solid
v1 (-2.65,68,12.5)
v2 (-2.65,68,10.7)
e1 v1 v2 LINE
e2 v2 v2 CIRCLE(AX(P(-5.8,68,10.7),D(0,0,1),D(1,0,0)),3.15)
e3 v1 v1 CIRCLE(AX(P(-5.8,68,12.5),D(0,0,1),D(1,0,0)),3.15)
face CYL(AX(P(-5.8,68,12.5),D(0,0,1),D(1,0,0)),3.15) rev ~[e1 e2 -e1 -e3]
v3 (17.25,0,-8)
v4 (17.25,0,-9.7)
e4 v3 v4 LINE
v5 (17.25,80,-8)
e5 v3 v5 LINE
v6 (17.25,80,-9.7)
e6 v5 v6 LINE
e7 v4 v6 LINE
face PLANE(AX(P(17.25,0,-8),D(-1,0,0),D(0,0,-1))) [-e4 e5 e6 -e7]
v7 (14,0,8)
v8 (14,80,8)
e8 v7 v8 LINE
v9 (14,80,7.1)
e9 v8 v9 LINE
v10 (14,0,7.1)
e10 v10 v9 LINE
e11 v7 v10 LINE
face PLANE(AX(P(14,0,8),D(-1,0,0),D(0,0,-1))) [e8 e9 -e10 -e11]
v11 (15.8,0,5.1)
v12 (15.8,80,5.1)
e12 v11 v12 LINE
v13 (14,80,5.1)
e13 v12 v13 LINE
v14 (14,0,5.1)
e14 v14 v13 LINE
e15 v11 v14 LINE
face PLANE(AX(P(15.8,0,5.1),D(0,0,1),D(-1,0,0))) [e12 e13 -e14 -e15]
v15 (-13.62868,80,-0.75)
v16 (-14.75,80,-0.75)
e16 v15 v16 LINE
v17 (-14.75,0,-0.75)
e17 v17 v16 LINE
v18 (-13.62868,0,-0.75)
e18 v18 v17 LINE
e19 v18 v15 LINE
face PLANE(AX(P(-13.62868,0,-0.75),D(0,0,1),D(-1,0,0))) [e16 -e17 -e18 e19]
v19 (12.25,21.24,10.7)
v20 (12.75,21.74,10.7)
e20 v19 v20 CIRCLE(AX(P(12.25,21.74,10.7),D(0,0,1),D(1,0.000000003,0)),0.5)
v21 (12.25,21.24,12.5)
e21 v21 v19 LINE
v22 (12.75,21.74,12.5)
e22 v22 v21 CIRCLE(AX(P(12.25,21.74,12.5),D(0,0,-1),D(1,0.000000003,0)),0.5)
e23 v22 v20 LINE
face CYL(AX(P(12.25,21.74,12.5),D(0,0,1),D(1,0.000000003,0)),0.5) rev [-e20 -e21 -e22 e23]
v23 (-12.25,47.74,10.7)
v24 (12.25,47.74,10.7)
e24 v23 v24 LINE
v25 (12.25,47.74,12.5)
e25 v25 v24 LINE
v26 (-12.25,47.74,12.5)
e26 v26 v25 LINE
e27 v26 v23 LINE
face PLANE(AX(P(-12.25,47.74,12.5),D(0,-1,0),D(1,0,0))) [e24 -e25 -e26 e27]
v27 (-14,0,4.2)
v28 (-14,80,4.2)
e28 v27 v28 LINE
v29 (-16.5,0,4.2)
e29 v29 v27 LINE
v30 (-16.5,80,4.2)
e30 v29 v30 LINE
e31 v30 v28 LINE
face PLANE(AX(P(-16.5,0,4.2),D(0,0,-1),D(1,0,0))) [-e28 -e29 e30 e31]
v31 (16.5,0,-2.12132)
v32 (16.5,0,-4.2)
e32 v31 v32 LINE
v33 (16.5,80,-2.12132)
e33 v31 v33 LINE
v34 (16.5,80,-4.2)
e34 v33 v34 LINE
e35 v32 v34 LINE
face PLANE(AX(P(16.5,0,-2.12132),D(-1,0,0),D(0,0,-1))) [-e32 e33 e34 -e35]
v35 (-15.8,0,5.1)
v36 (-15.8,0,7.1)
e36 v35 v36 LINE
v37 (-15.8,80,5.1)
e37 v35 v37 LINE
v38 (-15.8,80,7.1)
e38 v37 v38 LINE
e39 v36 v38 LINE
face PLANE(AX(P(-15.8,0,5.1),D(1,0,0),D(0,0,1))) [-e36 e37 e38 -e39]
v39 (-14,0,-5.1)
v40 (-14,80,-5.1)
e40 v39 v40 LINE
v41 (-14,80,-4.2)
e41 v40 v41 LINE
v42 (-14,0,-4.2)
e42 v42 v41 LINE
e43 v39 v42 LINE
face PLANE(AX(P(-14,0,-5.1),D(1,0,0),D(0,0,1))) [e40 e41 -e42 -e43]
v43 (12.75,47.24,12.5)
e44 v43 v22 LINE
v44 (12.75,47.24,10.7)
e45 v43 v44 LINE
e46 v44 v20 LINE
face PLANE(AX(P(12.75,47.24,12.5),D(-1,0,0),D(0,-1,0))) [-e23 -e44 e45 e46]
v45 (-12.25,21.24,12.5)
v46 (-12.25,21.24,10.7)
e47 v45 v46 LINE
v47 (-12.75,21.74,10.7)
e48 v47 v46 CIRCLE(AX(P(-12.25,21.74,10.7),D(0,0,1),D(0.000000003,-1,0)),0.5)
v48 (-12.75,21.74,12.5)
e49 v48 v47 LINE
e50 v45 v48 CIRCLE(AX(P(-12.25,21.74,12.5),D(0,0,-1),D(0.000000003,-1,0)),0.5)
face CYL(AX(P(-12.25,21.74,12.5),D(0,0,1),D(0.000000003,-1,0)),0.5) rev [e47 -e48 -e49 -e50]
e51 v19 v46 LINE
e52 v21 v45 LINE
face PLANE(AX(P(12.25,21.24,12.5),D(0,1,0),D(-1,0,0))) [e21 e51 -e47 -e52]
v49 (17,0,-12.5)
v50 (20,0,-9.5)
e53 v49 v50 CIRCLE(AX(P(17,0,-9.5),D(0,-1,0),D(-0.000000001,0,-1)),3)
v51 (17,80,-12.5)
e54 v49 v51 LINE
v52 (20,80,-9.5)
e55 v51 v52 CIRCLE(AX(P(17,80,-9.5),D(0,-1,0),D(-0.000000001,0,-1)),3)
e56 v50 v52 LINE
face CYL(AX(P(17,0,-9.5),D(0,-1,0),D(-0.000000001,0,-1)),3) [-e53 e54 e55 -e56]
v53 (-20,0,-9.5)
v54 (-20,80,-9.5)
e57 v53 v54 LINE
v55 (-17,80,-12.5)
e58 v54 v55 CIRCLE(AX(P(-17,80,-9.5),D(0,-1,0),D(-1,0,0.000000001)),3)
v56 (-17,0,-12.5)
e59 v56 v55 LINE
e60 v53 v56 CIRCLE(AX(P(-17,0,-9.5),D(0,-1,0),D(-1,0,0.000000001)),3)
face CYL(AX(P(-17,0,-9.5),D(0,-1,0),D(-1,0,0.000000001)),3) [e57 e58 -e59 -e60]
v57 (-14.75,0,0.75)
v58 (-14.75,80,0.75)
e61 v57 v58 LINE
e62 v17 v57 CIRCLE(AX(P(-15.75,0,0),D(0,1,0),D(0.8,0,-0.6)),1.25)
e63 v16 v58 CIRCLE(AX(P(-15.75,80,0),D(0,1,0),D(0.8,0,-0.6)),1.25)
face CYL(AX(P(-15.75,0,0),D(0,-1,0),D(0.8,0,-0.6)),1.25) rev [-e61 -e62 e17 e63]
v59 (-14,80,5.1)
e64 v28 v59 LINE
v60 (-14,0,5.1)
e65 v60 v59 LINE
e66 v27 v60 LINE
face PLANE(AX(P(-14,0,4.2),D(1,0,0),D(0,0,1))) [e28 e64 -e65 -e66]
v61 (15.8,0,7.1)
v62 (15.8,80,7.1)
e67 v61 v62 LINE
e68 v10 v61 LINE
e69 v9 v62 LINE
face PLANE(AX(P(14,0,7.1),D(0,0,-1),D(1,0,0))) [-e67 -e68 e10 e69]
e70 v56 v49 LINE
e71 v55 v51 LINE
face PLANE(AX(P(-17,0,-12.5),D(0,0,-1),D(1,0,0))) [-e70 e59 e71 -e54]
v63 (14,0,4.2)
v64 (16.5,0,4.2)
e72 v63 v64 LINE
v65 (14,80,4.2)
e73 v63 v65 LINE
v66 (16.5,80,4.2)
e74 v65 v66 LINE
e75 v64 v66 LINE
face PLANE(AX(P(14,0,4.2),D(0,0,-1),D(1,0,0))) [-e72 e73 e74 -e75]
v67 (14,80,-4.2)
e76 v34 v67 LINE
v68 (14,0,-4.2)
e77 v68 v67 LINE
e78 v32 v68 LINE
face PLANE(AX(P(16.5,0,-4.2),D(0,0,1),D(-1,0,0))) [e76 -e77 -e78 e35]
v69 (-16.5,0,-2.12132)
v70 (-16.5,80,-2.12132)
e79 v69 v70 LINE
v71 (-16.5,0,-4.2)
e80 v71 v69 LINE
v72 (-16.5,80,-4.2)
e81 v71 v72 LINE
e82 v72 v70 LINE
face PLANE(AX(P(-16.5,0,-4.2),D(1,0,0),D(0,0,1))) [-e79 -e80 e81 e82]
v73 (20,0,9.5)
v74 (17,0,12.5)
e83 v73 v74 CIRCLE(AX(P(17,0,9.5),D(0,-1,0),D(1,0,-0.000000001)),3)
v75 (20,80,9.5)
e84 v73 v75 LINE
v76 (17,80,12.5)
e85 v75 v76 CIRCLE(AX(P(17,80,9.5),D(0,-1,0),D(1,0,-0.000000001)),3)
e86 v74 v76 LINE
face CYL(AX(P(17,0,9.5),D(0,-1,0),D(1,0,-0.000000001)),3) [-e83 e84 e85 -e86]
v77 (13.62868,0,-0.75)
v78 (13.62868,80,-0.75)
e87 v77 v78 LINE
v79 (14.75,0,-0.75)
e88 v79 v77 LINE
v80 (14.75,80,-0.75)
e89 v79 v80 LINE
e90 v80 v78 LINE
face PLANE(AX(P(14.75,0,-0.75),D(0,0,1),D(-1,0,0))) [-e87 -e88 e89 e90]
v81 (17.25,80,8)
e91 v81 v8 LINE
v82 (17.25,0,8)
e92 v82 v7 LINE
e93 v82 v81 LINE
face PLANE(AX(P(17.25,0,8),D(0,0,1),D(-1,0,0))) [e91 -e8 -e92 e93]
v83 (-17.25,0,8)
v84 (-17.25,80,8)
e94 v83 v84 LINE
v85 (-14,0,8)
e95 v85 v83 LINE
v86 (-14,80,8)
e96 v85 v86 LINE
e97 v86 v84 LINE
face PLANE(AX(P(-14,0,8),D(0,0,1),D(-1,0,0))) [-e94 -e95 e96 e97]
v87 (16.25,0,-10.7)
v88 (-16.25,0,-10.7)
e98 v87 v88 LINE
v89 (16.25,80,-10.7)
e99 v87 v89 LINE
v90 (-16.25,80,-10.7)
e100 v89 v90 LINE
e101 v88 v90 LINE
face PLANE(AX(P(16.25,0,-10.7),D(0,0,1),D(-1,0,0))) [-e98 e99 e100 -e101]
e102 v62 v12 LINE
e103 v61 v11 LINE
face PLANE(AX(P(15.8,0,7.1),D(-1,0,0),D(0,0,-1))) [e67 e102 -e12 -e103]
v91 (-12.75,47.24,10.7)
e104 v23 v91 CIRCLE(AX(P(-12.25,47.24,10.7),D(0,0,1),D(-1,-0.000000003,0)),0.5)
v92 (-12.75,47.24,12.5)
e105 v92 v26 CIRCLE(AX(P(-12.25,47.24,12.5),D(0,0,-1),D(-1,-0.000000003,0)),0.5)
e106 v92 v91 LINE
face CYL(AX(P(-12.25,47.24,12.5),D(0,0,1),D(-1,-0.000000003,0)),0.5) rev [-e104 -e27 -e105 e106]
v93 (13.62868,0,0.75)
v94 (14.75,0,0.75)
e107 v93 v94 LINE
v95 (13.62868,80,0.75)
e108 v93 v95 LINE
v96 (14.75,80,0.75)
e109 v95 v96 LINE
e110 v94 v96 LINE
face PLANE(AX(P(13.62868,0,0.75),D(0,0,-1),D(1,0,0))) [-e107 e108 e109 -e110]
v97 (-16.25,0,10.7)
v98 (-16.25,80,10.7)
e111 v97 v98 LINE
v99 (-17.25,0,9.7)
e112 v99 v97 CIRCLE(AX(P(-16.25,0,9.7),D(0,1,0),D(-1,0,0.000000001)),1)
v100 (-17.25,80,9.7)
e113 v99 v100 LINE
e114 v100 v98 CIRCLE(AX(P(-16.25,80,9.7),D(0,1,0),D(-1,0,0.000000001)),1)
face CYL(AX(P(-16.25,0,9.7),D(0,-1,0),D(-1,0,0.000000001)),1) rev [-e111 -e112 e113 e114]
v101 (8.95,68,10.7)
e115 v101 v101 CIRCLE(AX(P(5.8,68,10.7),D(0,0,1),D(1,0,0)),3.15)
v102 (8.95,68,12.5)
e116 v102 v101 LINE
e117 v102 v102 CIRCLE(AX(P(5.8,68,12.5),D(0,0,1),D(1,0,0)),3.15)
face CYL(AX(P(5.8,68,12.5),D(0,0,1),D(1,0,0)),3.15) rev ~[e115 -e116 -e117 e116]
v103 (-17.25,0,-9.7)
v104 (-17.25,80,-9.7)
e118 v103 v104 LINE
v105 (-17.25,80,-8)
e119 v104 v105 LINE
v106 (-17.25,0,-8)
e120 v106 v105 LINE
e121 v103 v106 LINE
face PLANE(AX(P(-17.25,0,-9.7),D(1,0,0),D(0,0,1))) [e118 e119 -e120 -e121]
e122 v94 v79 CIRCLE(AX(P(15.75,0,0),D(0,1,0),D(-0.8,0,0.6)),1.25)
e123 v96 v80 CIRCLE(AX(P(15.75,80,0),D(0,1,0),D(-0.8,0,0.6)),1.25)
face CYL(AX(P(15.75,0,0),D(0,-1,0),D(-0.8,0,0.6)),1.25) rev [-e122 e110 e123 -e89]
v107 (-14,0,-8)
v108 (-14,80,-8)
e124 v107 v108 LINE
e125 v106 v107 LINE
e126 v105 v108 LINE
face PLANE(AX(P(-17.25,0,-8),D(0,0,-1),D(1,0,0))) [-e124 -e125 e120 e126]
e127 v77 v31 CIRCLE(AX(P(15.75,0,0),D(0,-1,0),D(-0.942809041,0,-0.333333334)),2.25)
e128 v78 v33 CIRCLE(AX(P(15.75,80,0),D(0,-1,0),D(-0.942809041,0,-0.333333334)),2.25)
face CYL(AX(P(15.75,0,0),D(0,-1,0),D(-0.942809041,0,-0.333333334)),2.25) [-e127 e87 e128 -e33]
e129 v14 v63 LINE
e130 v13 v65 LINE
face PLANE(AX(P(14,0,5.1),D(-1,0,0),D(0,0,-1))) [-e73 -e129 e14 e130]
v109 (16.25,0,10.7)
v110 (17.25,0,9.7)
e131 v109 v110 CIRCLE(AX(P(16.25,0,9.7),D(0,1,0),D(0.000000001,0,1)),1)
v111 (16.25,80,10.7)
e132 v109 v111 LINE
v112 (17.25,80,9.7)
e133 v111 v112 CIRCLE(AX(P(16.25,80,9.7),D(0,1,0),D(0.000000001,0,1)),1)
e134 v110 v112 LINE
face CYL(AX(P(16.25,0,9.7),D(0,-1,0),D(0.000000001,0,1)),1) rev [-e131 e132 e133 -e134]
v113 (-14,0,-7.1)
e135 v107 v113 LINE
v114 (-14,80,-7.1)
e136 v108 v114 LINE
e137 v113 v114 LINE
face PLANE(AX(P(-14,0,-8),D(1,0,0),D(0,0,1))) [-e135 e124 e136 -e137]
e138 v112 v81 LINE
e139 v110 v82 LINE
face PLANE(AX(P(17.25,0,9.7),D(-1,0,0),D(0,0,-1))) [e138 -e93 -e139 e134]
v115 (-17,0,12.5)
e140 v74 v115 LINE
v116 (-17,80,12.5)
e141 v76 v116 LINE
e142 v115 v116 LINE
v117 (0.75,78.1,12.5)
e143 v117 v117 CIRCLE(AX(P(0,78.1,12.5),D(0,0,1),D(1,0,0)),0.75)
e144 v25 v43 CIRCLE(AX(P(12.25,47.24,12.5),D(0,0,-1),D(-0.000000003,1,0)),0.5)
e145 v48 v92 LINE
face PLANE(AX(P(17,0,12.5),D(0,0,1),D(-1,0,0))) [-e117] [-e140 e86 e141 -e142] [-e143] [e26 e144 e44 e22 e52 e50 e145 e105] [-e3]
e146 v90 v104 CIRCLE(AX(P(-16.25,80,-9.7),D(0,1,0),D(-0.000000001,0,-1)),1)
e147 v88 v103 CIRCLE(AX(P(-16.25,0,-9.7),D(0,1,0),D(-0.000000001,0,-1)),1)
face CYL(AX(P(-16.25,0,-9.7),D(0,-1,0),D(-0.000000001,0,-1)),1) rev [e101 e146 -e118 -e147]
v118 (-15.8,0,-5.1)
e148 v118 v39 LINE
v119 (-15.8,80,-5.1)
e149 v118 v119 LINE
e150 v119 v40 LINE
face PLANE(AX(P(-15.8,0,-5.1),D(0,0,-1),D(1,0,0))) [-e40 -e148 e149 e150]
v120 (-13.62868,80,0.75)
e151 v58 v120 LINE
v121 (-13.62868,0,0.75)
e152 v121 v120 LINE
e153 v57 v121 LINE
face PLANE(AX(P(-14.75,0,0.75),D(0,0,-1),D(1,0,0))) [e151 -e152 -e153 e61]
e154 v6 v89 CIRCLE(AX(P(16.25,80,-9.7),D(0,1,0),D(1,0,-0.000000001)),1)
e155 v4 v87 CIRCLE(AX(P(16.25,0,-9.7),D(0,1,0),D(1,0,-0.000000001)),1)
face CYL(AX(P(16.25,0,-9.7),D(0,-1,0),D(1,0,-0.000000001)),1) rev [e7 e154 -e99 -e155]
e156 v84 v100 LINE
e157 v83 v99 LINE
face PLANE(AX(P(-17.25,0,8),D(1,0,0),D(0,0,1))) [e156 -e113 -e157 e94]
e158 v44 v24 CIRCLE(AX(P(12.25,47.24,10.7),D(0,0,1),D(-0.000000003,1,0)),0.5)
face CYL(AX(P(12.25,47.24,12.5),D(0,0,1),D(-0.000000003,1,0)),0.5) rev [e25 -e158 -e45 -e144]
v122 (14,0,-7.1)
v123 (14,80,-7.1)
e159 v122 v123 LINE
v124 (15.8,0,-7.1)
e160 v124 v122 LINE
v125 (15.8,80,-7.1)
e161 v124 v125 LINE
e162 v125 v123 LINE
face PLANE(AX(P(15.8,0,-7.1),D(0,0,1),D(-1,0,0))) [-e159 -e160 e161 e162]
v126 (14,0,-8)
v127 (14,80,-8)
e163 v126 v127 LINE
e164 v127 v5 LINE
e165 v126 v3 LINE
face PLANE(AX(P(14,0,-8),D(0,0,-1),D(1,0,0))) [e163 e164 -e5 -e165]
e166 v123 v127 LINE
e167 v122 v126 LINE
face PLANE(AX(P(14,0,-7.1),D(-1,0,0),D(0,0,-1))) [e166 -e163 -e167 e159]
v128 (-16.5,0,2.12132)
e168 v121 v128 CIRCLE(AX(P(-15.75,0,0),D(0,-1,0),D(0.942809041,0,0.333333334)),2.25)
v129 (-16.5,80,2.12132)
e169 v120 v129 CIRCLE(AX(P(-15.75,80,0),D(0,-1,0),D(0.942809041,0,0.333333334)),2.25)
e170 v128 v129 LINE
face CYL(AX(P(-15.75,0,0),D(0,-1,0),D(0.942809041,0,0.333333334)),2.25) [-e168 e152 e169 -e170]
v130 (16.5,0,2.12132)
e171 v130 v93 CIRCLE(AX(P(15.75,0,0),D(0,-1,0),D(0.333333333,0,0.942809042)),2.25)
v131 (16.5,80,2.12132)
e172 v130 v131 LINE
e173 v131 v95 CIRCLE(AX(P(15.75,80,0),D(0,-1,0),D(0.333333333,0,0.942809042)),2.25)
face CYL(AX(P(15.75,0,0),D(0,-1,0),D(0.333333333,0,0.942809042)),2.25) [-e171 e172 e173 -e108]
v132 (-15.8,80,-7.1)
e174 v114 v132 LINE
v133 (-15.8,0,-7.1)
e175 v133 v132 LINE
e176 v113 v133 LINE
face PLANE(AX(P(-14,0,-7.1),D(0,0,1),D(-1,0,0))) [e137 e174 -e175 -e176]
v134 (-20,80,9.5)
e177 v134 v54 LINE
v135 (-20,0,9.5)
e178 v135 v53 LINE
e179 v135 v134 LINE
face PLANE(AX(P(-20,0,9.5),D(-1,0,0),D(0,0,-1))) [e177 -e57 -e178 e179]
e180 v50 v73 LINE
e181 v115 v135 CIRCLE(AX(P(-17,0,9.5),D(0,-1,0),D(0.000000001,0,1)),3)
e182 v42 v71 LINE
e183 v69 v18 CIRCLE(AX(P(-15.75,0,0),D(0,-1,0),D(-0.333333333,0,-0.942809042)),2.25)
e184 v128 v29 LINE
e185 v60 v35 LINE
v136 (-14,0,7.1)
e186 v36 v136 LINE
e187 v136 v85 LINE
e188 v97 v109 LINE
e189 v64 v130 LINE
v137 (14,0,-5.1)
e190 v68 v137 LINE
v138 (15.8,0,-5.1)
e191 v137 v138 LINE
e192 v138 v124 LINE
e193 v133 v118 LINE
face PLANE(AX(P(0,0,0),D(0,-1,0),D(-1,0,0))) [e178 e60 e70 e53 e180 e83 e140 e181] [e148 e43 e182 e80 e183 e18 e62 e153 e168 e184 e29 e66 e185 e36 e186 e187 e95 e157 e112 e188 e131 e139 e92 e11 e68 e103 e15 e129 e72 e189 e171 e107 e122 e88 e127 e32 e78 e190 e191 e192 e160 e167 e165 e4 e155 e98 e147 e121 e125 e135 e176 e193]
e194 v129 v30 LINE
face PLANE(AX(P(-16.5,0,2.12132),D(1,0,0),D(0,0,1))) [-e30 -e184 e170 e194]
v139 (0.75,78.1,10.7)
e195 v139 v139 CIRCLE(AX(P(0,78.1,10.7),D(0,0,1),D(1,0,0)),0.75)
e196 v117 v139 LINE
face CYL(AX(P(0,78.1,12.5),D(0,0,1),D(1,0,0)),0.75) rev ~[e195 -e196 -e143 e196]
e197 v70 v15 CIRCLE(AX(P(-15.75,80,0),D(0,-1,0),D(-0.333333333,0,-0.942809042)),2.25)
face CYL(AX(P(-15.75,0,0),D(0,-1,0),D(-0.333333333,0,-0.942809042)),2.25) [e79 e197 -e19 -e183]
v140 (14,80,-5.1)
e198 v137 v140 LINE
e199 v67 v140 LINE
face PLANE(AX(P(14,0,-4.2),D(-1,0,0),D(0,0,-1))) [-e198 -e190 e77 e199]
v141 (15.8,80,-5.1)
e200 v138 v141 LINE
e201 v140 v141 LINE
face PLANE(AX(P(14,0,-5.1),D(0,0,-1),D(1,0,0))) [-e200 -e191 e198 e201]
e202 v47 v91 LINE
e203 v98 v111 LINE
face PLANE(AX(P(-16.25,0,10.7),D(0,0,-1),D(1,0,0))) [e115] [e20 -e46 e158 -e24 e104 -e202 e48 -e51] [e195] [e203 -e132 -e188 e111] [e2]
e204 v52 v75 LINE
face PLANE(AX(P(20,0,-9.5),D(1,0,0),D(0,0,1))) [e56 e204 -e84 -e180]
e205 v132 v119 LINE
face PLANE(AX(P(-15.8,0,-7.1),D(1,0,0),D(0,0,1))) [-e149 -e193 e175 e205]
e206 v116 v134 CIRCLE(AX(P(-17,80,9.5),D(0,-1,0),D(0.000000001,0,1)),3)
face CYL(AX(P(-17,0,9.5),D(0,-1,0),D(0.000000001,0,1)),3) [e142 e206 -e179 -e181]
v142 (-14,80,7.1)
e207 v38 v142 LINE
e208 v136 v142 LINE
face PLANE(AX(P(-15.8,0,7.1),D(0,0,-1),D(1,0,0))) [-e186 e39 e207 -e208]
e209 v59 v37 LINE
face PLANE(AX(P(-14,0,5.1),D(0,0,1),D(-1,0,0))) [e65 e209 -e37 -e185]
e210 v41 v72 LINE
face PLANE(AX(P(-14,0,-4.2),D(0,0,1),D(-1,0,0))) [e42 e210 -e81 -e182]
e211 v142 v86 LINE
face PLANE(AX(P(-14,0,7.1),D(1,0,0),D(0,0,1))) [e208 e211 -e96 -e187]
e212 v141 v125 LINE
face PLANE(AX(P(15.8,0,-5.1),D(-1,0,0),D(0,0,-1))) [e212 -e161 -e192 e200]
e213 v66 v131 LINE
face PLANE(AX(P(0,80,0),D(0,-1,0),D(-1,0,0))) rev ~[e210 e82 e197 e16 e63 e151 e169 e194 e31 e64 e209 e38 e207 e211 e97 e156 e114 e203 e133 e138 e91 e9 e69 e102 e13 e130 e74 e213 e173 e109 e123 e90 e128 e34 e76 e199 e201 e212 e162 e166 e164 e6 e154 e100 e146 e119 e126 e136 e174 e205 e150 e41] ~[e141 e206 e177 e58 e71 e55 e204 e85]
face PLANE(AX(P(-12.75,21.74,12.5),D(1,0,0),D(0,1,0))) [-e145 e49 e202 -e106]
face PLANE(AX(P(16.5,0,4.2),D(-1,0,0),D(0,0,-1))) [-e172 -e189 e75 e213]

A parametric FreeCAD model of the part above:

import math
import FreeCAD as App
import Part
import Sketcher
from FreeCAD import Vector

doc = App.newDocument("Part")
body = doc.addObject("PartDesign::Body", "Body")

# Sketch on XZ plane
sketch1 = body.newObject("Sketcher::SketchObject", "Sketch")
sketch1.AttachmentSupport = (doc.getObject("XZ_Plane"), [""])
sketch1.MapMode = "FlatFace"
sketch1.addGeometry(Part.LineSegment(Vector(17, -12.5, 0), Vector(-17, -12.5, 0)), False)
sketch1.addGeometry(Part.ArcOfCircle(Part.Circle(Vector(-17, -9.5, 0), Vector(0, 0, 1), 3), math.radians(180), math.radians(270)), False)
sketch1.addGeometry(Part.LineSegment(Vector(-20, -9.5, 0), Vector(-20, 9.5, 0)), False)
sketch1.addGeometry(Part.ArcOfCircle(Part.Circle(Vector(-17, 9.5, 0), Vector(0, 0, 1), 3), math.radians(90), math.radians(180)), False)
sketch1.addGeometry(Part.LineSegment(Vector(-17, 12.5, 0), Vector(17, 12.5, 0)), False)
sketch1.addGeometry(Part.ArcOfCircle(Part.Circle(Vector(17, 9.5, 0), Vector(0, 0, 1), 3), math.radians(0), math.radians(90)), False)
sketch1.addGeometry(Part.LineSegment(Vector(20, 9.5, 0), Vector(20, -9.5, 0)), False)
sketch1.addGeometry(Part.ArcOfCircle(Part.Circle(Vector(17, -9.5, 0), Vector(0, 0, 1), 3), math.radians(-90), math.radians(0)), False)
sketch1.addGeometry(Part.LineSegment(Vector(-17.2, -8, 0), Vector(-17.2, -9.7, 0)), False)
sketch1.addGeometry(Part.ArcOfCircle(Part.Circle(Vector(-16.2, -9.7, 0), Vector(0, 0, 1), 1), math.radians(-180), math.radians(-90)), False)
sketch1.addGeometry(Part.LineSegment(Vector(-16.2, -10.7, 0), Vector(16.2, -10.7, 0)), False)
sketch1.addGeometry(Part.ArcOfCircle(Part.Circle(Vector(16.2, -9.7, 0), Vector(0, 0, 1), 1), math.radians(-90), math.radians(0)), False)
sketch1.addGeometry(Part.LineSegment(Vector(17.2, -9.7, 0), Vector(17.2, -8, 0)), False)
sketch1.addGeometry(Part.LineSegment(Vector(17.2, -8, 0), Vector(14, -8, 0)), False)
sketch1.addGeometry(Part.LineSegment(Vector(14, -8, 0), Vector(14, -7.1, 0)), False)
sketch1.addGeometry(Part.LineSegment(Vector(14, -7.1, 0), Vector(15.8, -7.1, 0)), False)
sketch1.addGeometry(Part.LineSegment(Vector(15.8, -7.1, 0), Vector(15.8, -5.1, 0)), False)
sketch1.addGeometry(Part.LineSegment(Vector(15.8, -5.1, 0), Vector(14, -5.1, 0)), False)
sketch1.addGeometry(Part.LineSegment(Vector(14, -5.1, 0), Vector(14, -4.2, 0)), False)
sketch1.addGeometry(Part.LineSegment(Vector(14, -4.2, 0), Vector(16.5, -4.2, 0)), False)
sketch1.addGeometry(Part.LineSegment(Vector(16.5, -4.2, 0), Vector(16.5, -2.1, 0)), False)
sketch1.addGeometry(Part.ArcOfCircle(Part.Circle(Vector(15.8, 0, 0), Vector(0, 0, 1), 2.3), math.radians(-161), math.radians(-71)), False)
sketch1.addGeometry(Part.LineSegment(Vector(13.6, -0.8, 0), Vector(14.8, -0.8, 0)), False)
sketch1.addGeometry(Part.ArcOfCircle(Part.Circle(Vector(15.8, 0, 0), Vector(0, 0, 1), 1.2), math.radians(-143), math.radians(143)), False)
sketch1.addGeometry(Part.LineSegment(Vector(14.8, 0.8, 0), Vector(13.6, 0.8, 0)), False)
sketch1.addGeometry(Part.ArcOfCircle(Part.Circle(Vector(15.8, 0, 0), Vector(0, 0, 1), 2.3), math.radians(71), math.radians(161)), False)
sketch1.addGeometry(Part.LineSegment(Vector(16.5, 2.1, 0), Vector(16.5, 4.2, 0)), False)
sketch1.addGeometry(Part.LineSegment(Vector(16.5, 4.2, 0), Vector(14, 4.2, 0)), False)
sketch1.addGeometry(Part.LineSegment(Vector(14, 4.2, 0), Vector(14, 5.1, 0)), False)
sketch1.addGeometry(Part.LineSegment(Vector(14, 5.1, 0), Vector(15.8, 5.1, 0)), False)
sketch1.addGeometry(Part.LineSegment(Vector(15.8, 5.1, 0), Vector(15.8, 7.1, 0)), False)
sketch1.addGeometry(Part.LineSegment(Vector(15.8, 7.1, 0), Vector(14, 7.1, 0)), False)
sketch1.addGeometry(Part.LineSegment(Vector(14, 7.1, 0), Vector(14, 8, 0)), False)
sketch1.addGeometry(Part.LineSegment(Vector(14, 8, 0), Vector(17.2, 8, 0)), False)
sketch1.addGeometry(Part.LineSegment(Vector(17.2, 8, 0), Vector(17.2, 9.7, 0)), False)
sketch1.addGeometry(Part.ArcOfCircle(Part.Circle(Vector(16.2, 9.7, 0), Vector(0, 0, 1), 1), math.radians(0), math.radians(90)), False)
sketch1.addGeometry(Part.LineSegment(Vector(16.2, 10.7, 0), Vector(-16.2, 10.7, 0)), False)
sketch1.addGeometry(Part.ArcOfCircle(Part.Circle(Vector(-16.2, 9.7, 0), Vector(0, 0, 1), 1), math.radians(90), math.radians(180)), False)
sketch1.addGeometry(Part.LineSegment(Vector(-17.2, 9.7, 0), Vector(-17.2, 8, 0)), False)
sketch1.addGeometry(Part.LineSegment(Vector(-17.2, 8, 0), Vector(-14, 8, 0)), False)
sketch1.addGeometry(Part.LineSegment(Vector(-14, 8, 0), Vector(-14, 7.1, 0)), False)
sketch1.addGeometry(Part.LineSegment(Vector(-14, 7.1, 0), Vector(-15.8, 7.1, 0)), False)
sketch1.addGeometry(Part.LineSegment(Vector(-15.8, 7.1, 0), Vector(-15.8, 5.1, 0)), False)
sketch1.addGeometry(Part.LineSegment(Vector(-15.8, 5.1, 0), Vector(-14, 5.1, 0)), False)
sketch1.addGeometry(Part.LineSegment(Vector(-14, 5.1, 0), Vector(-14, 4.2, 0)), False)
sketch1.addGeometry(Part.LineSegment(Vector(-14, 4.2, 0), Vector(-16.5, 4.2, 0)), False)
sketch1.addGeometry(Part.LineSegment(Vector(-16.5, 4.2, 0), Vector(-16.5, 2.1, 0)), False)
sketch1.addGeometry(Part.ArcOfCircle(Part.Circle(Vector(-15.8, 0, 0), Vector(0, 0, 1), 2.3), math.radians(19), math.radians(109)), False)
sketch1.addGeometry(Part.LineSegment(Vector(-13.6, 0.8, 0), Vector(-14.8, 0.8, 0)), False)
sketch1.addGeometry(Part.ArcOfCircle(Part.Circle(Vector(-15.8, 0, 0), Vector(0, 0, 1), 1.2), math.radians(37), math.radians(323)), False)
sketch1.addGeometry(Part.LineSegment(Vector(-14.8, -0.8, 0), Vector(-13.6, -0.8, 0)), False)
sketch1.addGeometry(Part.ArcOfCircle(Part.Circle(Vector(-15.8, 0, 0), Vector(0, 0, 1), 2.3), math.radians(-109), math.radians(-19)), False)
sketch1.addGeometry(Part.LineSegment(Vector(-16.5, -2.1, 0), Vector(-16.5, -4.2, 0)), False)
sketch1.addGeometry(Part.LineSegment(Vector(-16.5, -4.2, 0), Vector(-14, -4.2, 0)), False)
sketch1.addGeometry(Part.LineSegment(Vector(-14, -4.2, 0), Vector(-14, -5.1, 0)), False)
sketch1.addGeometry(Part.LineSegment(Vector(-14, -5.1, 0), Vector(-15.8, -5.1, 0)), False)
sketch1.addGeometry(Part.LineSegment(Vector(-15.8, -5.1, 0), Vector(-15.8, -7.1, 0)), False)
sketch1.addGeometry(Part.LineSegment(Vector(-15.8, -7.1, 0), Vector(-14, -7.1, 0)), False)
sketch1.addGeometry(Part.LineSegment(Vector(-14, -7.1, 0), Vector(-14, -8, 0)), False)
sketch1.addGeometry(Part.LineSegment(Vector(-14, -8, 0), Vector(-17.2, -8, 0)), False)
sketch1.addConstraint(Sketcher.Constraint("Tangent", 0, 2, 1, 2))
sketch1.addConstraint(Sketcher.Constraint("Tangent", 1, 1, 2, 1))
sketch1.addConstraint(Sketcher.Constraint("Tangent", 2, 2, 3, 2))
sketch1.addConstraint(Sketcher.Constraint("Tangent", 3, 1, 4, 1))
sketch1.addConstraint(Sketcher.Constraint("Tangent", 4, 2, 5, 2))
sketch1.addConstraint(Sketcher.Constraint("Tangent", 5, 1, 6, 1))
sketch1.addConstraint(Sketcher.Constraint("Tangent", 6, 2, 7, 2))
sketch1.addConstraint(Sketcher.Constraint("Tangent", 7, 1, 0, 1))
sketch1.addConstraint(Sketcher.Constraint("Tangent", 8, 2, 9, 1))
sketch1.addConstraint(Sketcher.Constraint("Tangent", 9, 2, 10, 1))
sketch1.addConstraint(Sketcher.Constraint("Tangent", 10, 2, 11, 1))
sketch1.addConstraint(Sketcher.Constraint("Tangent", 11, 2, 12, 1))
sketch1.addConstraint(Sketcher.Constraint("Coincident", 12, 2, 13, 1))
sketch1.addConstraint(Sketcher.Constraint("Coincident", 13, 2, 14, 1))
sketch1.addConstraint(Sketcher.Constraint("Coincident", 14, 2, 15, 1))
sketch1.addConstraint(Sketcher.Constraint("Coincident", 15, 2, 16, 1))
sketch1.addConstraint(Sketcher.Constraint("Coincident", 16, 2, 17, 1))
sketch1.addConstraint(Sketcher.Constraint("Coincident", 17, 2, 18, 1))
sketch1.addConstraint(Sketcher.Constraint("Coincident", 18, 2, 19, 1))
sketch1.addConstraint(Sketcher.Constraint("Coincident", 19, 2, 20, 1))
sketch1.addConstraint(Sketcher.Constraint("Coincident", 20, 2, 21, 2))
sketch1.addConstraint(Sketcher.Constraint("Coincident", 21, 1, 22, 1))
sketch1.addConstraint(Sketcher.Constraint("Coincident", 22, 2, 23, 1))
sketch1.addConstraint(Sketcher.Constraint("Coincident", 23, 2, 24, 1))
sketch1.addConstraint(Sketcher.Constraint("Coincident", 24, 2, 25, 2))
sketch1.addConstraint(Sketcher.Constraint("Coincident", 25, 1, 26, 1))
sketch1.addConstraint(Sketcher.Constraint("Coincident", 26, 2, 27, 1))
sketch1.addConstraint(Sketcher.Constraint("Coincident", 27, 2, 28, 1))
sketch1.addConstraint(Sketcher.Constraint("Coincident", 28, 2, 29, 1))
sketch1.addConstraint(Sketcher.Constraint("Coincident", 29, 2, 30, 1))
sketch1.addConstraint(Sketcher.Constraint("Coincident", 30, 2, 31, 1))
sketch1.addConstraint(Sketcher.Constraint("Coincident", 31, 2, 32, 1))
sketch1.addConstraint(Sketcher.Constraint("Coincident", 32, 2, 33, 1))
sketch1.addConstraint(Sketcher.Constraint("Coincident", 33, 2, 34, 1))
sketch1.addConstraint(Sketcher.Constraint("Tangent", 34, 2, 35, 1))
sketch1.addConstraint(Sketcher.Constraint("Tangent", 35, 2, 36, 1))
sketch1.addConstraint(Sketcher.Constraint("Tangent", 36, 2, 37, 1))
sketch1.addConstraint(Sketcher.Constraint("Tangent", 37, 2, 38, 1))
sketch1.addConstraint(Sketcher.Constraint("Coincident", 38, 2, 39, 1))
sketch1.addConstraint(Sketcher.Constraint("Coincident", 39, 2, 40, 1))
sketch1.addConstraint(Sketcher.Constraint("Coincident", 40, 2, 41, 1))
sketch1.addConstraint(Sketcher.Constraint("Coincident", 41, 2, 42, 1))
sketch1.addConstraint(Sketcher.Constraint("Coincident", 42, 2, 43, 1))
sketch1.addConstraint(Sketcher.Constraint("Coincident", 43, 2, 44, 1))
sketch1.addConstraint(Sketcher.Constraint("Coincident", 44, 2, 45, 1))
sketch1.addConstraint(Sketcher.Constraint("Coincident", 45, 2, 46, 1))
sketch1.addConstraint(Sketcher.Constraint("Coincident", 46, 2, 47, 2))
sketch1.addConstraint(Sketcher.Constraint("Coincident", 47, 1, 48, 1))
sketch1.addConstraint(Sketcher.Constraint("Coincident", 48, 2, 49, 1))
sketch1.addConstraint(Sketcher.Constraint("Coincident", 49, 2, 50, 1))
sketch1.addConstraint(Sketcher.Constraint("Coincident", 50, 2, 51, 2))
sketch1.addConstraint(Sketcher.Constraint("Coincident", 51, 1, 52, 1))
sketch1.addConstraint(Sketcher.Constraint("Coincident", 52, 2, 53, 1))
sketch1.addConstraint(Sketcher.Constraint("Coincident", 53, 2, 54, 1))
sketch1.addConstraint(Sketcher.Constraint("Coincident", 54, 2, 55, 1))
sketch1.addConstraint(Sketcher.Constraint("Coincident", 55, 2, 56, 1))
sketch1.addConstraint(Sketcher.Constraint("Coincident", 56, 2, 57, 1))
sketch1.addConstraint(Sketcher.Constraint("Coincident", 57, 2, 58, 1))
sketch1.addConstraint(Sketcher.Constraint("Coincident", 58, 2, 59, 1))
sketch1.addConstraint(Sketcher.Constraint("Coincident", 59, 2, 8, 1))
sketch1.addConstraint(Sketcher.Constraint("Horizontal", 0))
sketch1.addConstraint(Sketcher.Constraint("Vertical", 2))
sketch1.addConstraint(Sketcher.Constraint("Horizontal", 4))
sketch1.addConstraint(Sketcher.Constraint("Vertical", 6))
sketch1.addConstraint(Sketcher.Constraint("Vertical", 8))
sketch1.addConstraint(Sketcher.Constraint("Horizontal", 10))
sketch1.addConstraint(Sketcher.Constraint("Vertical", 12))
sketch1.addConstraint(Sketcher.Constraint("Horizontal", 13))
sketch1.addConstraint(Sketcher.Constraint("Vertical", 14))
sketch1.addConstraint(Sketcher.Constraint("Horizontal", 15))
sketch1.addConstraint(Sketcher.Constraint("Vertical", 16))
sketch1.addConstraint(Sketcher.Constraint("Horizontal", 17))
sketch1.addConstraint(Sketcher.Constraint("Vertical", 18))
sketch1.addConstraint(Sketcher.Constraint("Horizontal", 19))
sketch1.addConstraint(Sketcher.Constraint("Vertical", 20))
sketch1.addConstraint(Sketcher.Constraint("Horizontal", 22))
sketch1.addConstraint(Sketcher.Constraint("Horizontal", 24))
sketch1.addConstraint(Sketcher.Constraint("Vertical", 26))
sketch1.addConstraint(Sketcher.Constraint("Horizontal", 27))
sketch1.addConstraint(Sketcher.Constraint("Vertical", 28))
sketch1.addConstraint(Sketcher.Constraint("Horizontal", 29))
sketch1.addConstraint(Sketcher.Constraint("Vertical", 30))
sketch1.addConstraint(Sketcher.Constraint("Horizontal", 31))
sketch1.addConstraint(Sketcher.Constraint("Vertical", 32))
sketch1.addConstraint(Sketcher.Constraint("Horizontal", 33))
sketch1.addConstraint(Sketcher.Constraint("Vertical", 34))
sketch1.addConstraint(Sketcher.Constraint("Horizontal", 36))
sketch1.addConstraint(Sketcher.Constraint("Vertical", 38))
sketch1.addConstraint(Sketcher.Constraint("Horizontal", 39))
sketch1.addConstraint(Sketcher.Constraint("Vertical", 40))
sketch1.addConstraint(Sketcher.Constraint("Horizontal", 41))
sketch1.addConstraint(Sketcher.Constraint("Vertical", 42))
sketch1.addConstraint(Sketcher.Constraint("Horizontal", 43))
sketch1.addConstraint(Sketcher.Constraint("Vertical", 44))
sketch1.addConstraint(Sketcher.Constraint("Horizontal", 45))
sketch1.addConstraint(Sketcher.Constraint("Vertical", 46))
sketch1.addConstraint(Sketcher.Constraint("Horizontal", 48))
sketch1.addConstraint(Sketcher.Constraint("Horizontal", 50))
sketch1.addConstraint(Sketcher.Constraint("Vertical", 52))
sketch1.addConstraint(Sketcher.Constraint("Horizontal", 53))
sketch1.addConstraint(Sketcher.Constraint("Vertical", 54))
sketch1.addConstraint(Sketcher.Constraint("Horizontal", 55))
sketch1.addConstraint(Sketcher.Constraint("Vertical", 56))
sketch1.addConstraint(Sketcher.Constraint("Horizontal", 57))
sketch1.addConstraint(Sketcher.Constraint("Vertical", 58))
sketch1.addConstraint(Sketcher.Constraint("Horizontal", 59))
sketch1.addConstraint(Sketcher.Constraint("Coincident", 23, 3, 21, 3))
sketch1.addConstraint(Sketcher.Constraint("Coincident", 25, 3, 21, 3))
sketch1.addConstraint(Sketcher.Constraint("Coincident", 49, 3, 47, 3))
sketch1.addConstraint(Sketcher.Constraint("Coincident", 51, 3, 47, 3))
sketch1.addConstraint(Sketcher.Constraint("Equal", 1, 3))
sketch1.addConstraint(Sketcher.Constraint("Equal", 3, 5))
sketch1.addConstraint(Sketcher.Constraint("Equal", 5, 7))
sketch1.addConstraint(Sketcher.Constraint("Equal", 9, 11))
sketch1.addConstraint(Sketcher.Constraint("Equal", 21, 25))
sketch1.addConstraint(Sketcher.Constraint("Equal", 11, 35))
sketch1.addConstraint(Sketcher.Constraint("Equal", 35, 37))
sketch1.addConstraint(Sketcher.Constraint("Equal", 25, 47))
sketch1.addConstraint(Sketcher.Constraint("Equal", 23, 49))
sketch1.addConstraint(Sketcher.Constraint("Equal", 47, 51))
sketch1.addConstraint(Sketcher.Constraint("Symmetric", 1, 3, 5, 3, -1, 1))
sketch1.addConstraint(Sketcher.Constraint("Symmetric", 9, 3, 35, 3, -1, 1))
sketch1.addConstraint(Sketcher.Constraint("Symmetric", 21, 3, 47, 3, -1, 1))
sketch1.addConstraint(Sketcher.Constraint("Symmetric", 12, 2, 38, 2, -1, 1))
sketch1.addConstraint(Sketcher.Constraint("Symmetric", 14, 2, 40, 2, -1, 1))
sketch1.addConstraint(Sketcher.Constraint("Symmetric", 16, 2, 42, 2, -1, 1))
sketch1.addConstraint(Sketcher.Constraint("Symmetric", 18, 2, 44, 2, -1, 1))
sketch1.addConstraint(Sketcher.Constraint("Symmetric", 26, 2, 52, 2, -1, 1))
sketch1.addConstraint(Sketcher.Constraint("Symmetric", 28, 2, 54, 2, -1, 1))
sketch1.addConstraint(Sketcher.Constraint("Symmetric", 30, 2, 56, 2, -1, 1))
sketch1.addConstraint(Sketcher.Constraint("Symmetric", 32, 2, 58, 2, -1, 1))
sketch1.addConstraint(Sketcher.Constraint("Symmetric", 33, 2, 38, 2, -2))
sketch1.addConstraint(Sketcher.Constraint("Symmetric", 31, 2, 40, 2, -2))
sketch1.addConstraint(Sketcher.Constraint("Symmetric", 29, 2, 42, 2, -2))
sketch1.addConstraint(Sketcher.Constraint("Symmetric", 27, 2, 44, 2, -2))
sketch1.addConstraint(Sketcher.Constraint("Symmetric", 25, 1, 46, 2, -2))
sketch1.addConstraint(Sketcher.Constraint("Horizontal", 24, 2, 47, 1))
sketch1.addConstraint(Sketcher.Constraint("Horizontal", 22, 2, 49, 2))
sketch1.addConstraint(Sketcher.Constraint("Horizontal", 20, 2, 51, 1))
sketch1.addConstraint(Sketcher.Constraint("Vertical", 14, 2, 17, 2))
sketch1.addConstraint(Sketcher.Constraint("Vertical", 22, 2, 23, 2))
sketch1.addConstraint(Sketcher.Constraint("Equal", 14, 18))
sketch1.addConstraint(Sketcher.Constraint("Radius", 1, 3.0))
sketch1.addConstraint(Sketcher.Constraint("Radius", 9, 1.0))
sketch1.addConstraint(Sketcher.Constraint("DistanceX", 0, 2, 0, 1, 34.0))
sketch1.addConstraint(Sketcher.Constraint("DistanceY", 2, 1, 2, 2, 19.0))
sketch1.addConstraint(Sketcher.Constraint("DistanceY", 16, 1, 16, 2, 2.0))
sketch1.addConstraint(Sketcher.Constraint("Radius", 21, 2.25))
sketch1.addConstraint(Sketcher.Constraint("Radius", 23, 1.25))
sketch1.addConstraint(Sketcher.Constraint("DistanceX", 10, 1, 10, 2, 32.5))
sketch1.addConstraint(Sketcher.Constraint("DistanceX", 15, 1, 15, 2, 1.8))
sketch1.addConstraint(Sketcher.Constraint("DistanceX", 19, 1, 19, 2, 2.5))
sketch1.addConstraint(Sketcher.Constraint("DistanceY", 8, 2, 8, 1, 1.7))
sketch1.addConstraint(Sketcher.Constraint("DistanceY", 14, 1, 14, 2, 0.9))
sketch1.addConstraint(Sketcher.Constraint("DistanceY", 12, 2, -1, 1, 8.0))
sketch1.addConstraint(Sketcher.Constraint("DistanceX", -1, 1, 13, 2, 14.0))
sketch1.addConstraint(Sketcher.Constraint("DistanceX", -1, 1, 21, 3, 15.75))
sketch1.addConstraint(Sketcher.Constraint("DistanceY", 21, 1, -1, 1, 0.75))
pad1 = body.newObject("PartDesign::Pad", "Pad")
pad1.Profile = sketch1
pad1.Length = 80
pad1.Reversed = True

# Sketch on XY plane
sketch2 = body.newObject("Sketcher::SketchObject", "Sketch001")
sketch2.AttachmentSupport = (doc.getObject("XY_Plane"), [""])
sketch2.MapMode = "FlatFace"
sketch2.AttachmentOffset = App.Placement(Vector(0, 0, 12.5), App.Rotation())
sketch2.addGeometry(Part.LineSegment(Vector(12.25, 47.74, 0), Vector(-12.25, 47.74, 0)), False)
sketch2.addGeometry(Part.ArcOfCircle(Part.Circle(Vector(-12.25, 47.24, 0), Vector(0, 0, 1), 0.5), math.radians(90), math.radians(180)), False)
sketch2.addGeometry(Part.LineSegment(Vector(-12.75, 47.24, 0), Vector(-12.75, 21.74, 0)), False)
sketch2.addGeometry(Part.ArcOfCircle(Part.Circle(Vector(-12.25, 21.74, 0), Vector(0, 0, 1), 0.5), math.radians(180), math.radians(270)), False)
sketch2.addGeometry(Part.LineSegment(Vector(-12.25, 21.24, 0), Vector(12.25, 21.24, 0)), False)
sketch2.addGeometry(Part.ArcOfCircle(Part.Circle(Vector(12.25, 21.74, 0), Vector(0, 0, 1), 0.5), math.radians(-90), math.radians(0)), False)
sketch2.addGeometry(Part.LineSegment(Vector(12.75, 21.74, 0), Vector(12.75, 47.24, 0)), False)
sketch2.addGeometry(Part.ArcOfCircle(Part.Circle(Vector(12.25, 47.24, 0), Vector(0, 0, 1), 0.5), math.radians(0), math.radians(90)), False)
sketch2.addConstraint(Sketcher.Constraint("Tangent", 0, 2, 1, 1))
sketch2.addConstraint(Sketcher.Constraint("Tangent", 1, 2, 2, 1))
sketch2.addConstraint(Sketcher.Constraint("Tangent", 2, 2, 3, 1))
sketch2.addConstraint(Sketcher.Constraint("Tangent", 3, 2, 4, 1))
sketch2.addConstraint(Sketcher.Constraint("Tangent", 4, 2, 5, 1))
sketch2.addConstraint(Sketcher.Constraint("Tangent", 5, 2, 6, 1))
sketch2.addConstraint(Sketcher.Constraint("Tangent", 6, 2, 7, 1))
sketch2.addConstraint(Sketcher.Constraint("Tangent", 7, 2, 0, 1))
sketch2.addConstraint(Sketcher.Constraint("Horizontal", 0))
sketch2.addConstraint(Sketcher.Constraint("Vertical", 2))
sketch2.addConstraint(Sketcher.Constraint("Horizontal", 4))
sketch2.addConstraint(Sketcher.Constraint("Vertical", 6))
sketch2.addConstraint(Sketcher.Constraint("Equal", 1, 3))
sketch2.addConstraint(Sketcher.Constraint("Equal", 3, 5))
sketch2.addConstraint(Sketcher.Constraint("Equal", 5, 7))
sketch2.addConstraint(Sketcher.Constraint("Radius", 1, 0.5))
sketch2.addConstraint(Sketcher.Constraint("DistanceX", 0, 2, 0, 1, 24.5))
sketch2.addConstraint(Sketcher.Constraint("DistanceY", 2, 2, 2, 1, 25.5))
sketch2.addConstraint(Sketcher.Constraint("DistanceX", 1, 3, -1, 1, 12.25))
sketch2.addConstraint(Sketcher.Constraint("DistanceY", -1, 1, 1, 3, 47.24))
pocket1 = body.newObject("PartDesign::Pocket", "Pocket")
pocket1.Profile = sketch2
pocket1.Type = "UpToFirst"

# Sketch on XY plane
sketch3 = body.newObject("Sketcher::SketchObject", "Sketch002")
sketch3.AttachmentSupport = (doc.getObject("XY_Plane"), [""])
sketch3.MapMode = "FlatFace"
sketch3.AttachmentOffset = App.Placement(Vector(0, 0, 12.5), App.Rotation())
sketch3.addGeometry(Part.Circle(Vector(-5.8, 68, 0), Vector(0, 0, 1), 3.1), False)
sketch3.addConstraint(Sketcher.Constraint("Diameter", 0, 6.3))
sketch3.addConstraint(Sketcher.Constraint("DistanceY", -1, 1, 0, 3, 68.0))
sketch3.addConstraint(Sketcher.Constraint("DistanceX", 0, 3, -1, 1, 5.8))
pocket2 = body.newObject("PartDesign::Pocket", "Pocket001")
pocket2.Profile = sketch3
pocket2.Type = "UpToFirst"

# Sketch on XY plane
sketch4 = body.newObject("Sketcher::SketchObject", "Sketch003")
sketch4.AttachmentSupport = (doc.getObject("XY_Plane"), [""])
sketch4.MapMode = "FlatFace"
sketch4.AttachmentOffset = App.Placement(Vector(0, 0, 12.5), App.Rotation())
sketch4.addGeometry(Part.Circle(Vector(5.8, 68, 0), Vector(0, 0, 1), 3.1), False)
sketch4.addConstraint(Sketcher.Constraint("Diameter", 0, 6.3))
sketch4.addConstraint(Sketcher.Constraint("DistanceY", -1, 1, 0, 3, 68.0))
sketch4.addConstraint(Sketcher.Constraint("DistanceX", -1, 1, 0, 3, 5.8))
pocket3 = body.newObject("PartDesign::Pocket", "Pocket002")
pocket3.Profile = sketch4
pocket3.Type = "UpToFirst"

# Sketch on XY plane
sketch5 = body.newObject("Sketcher::SketchObject", "Sketch004")
sketch5.AttachmentSupport = (doc.getObject("XY_Plane"), [""])
sketch5.MapMode = "FlatFace"
sketch5.AttachmentOffset = App.Placement(Vector(0, 0, 12.5), App.Rotation())
sketch5.addGeometry(Part.Circle(Vector(0, 78.1, 0), Vector(0, 0, 1), 0.8), False)
sketch5.addConstraint(Sketcher.Constraint("PointOnObject", 0, 3, -2))
sketch5.addConstraint(Sketcher.Constraint("Diameter", 0, 1.5))
sketch5.addConstraint(Sketcher.Constraint("DistanceY", -1, 1, 0, 3, 78.1))
pocket4 = body.newObject("PartDesign::Pocket", "Pocket003")
pocket4.Profile = sketch5
pocket4.Type = "UpToFirst"

doc.recompute()
